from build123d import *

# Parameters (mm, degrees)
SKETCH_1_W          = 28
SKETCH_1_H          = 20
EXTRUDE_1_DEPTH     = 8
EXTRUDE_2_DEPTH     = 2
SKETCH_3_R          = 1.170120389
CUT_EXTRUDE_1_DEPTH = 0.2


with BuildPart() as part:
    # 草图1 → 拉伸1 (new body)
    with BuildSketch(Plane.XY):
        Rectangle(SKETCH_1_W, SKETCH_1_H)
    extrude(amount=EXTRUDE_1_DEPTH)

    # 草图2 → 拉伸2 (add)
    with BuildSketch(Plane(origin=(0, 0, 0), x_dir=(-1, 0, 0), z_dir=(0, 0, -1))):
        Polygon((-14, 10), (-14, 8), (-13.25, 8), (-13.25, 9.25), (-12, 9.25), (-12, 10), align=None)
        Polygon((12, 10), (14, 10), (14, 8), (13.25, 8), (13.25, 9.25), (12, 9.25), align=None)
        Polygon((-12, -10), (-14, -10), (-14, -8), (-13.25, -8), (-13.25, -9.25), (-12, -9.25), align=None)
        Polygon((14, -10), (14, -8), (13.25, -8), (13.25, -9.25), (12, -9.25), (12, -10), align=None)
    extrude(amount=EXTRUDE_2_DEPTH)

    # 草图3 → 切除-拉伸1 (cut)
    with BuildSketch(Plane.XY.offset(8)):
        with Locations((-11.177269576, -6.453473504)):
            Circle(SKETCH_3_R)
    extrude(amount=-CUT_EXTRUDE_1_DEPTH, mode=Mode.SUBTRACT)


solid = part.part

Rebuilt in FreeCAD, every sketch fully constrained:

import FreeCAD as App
import Part
import Sketcher

V = App.Vector


def add_polygon(sketch, points):
    """Adds a closed chain of lines whose ends are joined by coincident constraints."""
    first, n = sketch.GeometryCount, len(points)
    for a, b in zip(points, points[1:] + points[:1]):
        sketch.addGeometry(Part.LineSegment(App.Vector(*a, 0), App.Vector(*b, 0)), False)
    for i in range(n):
        sketch.addConstraint(Sketcher.Constraint("Coincident", first + i, 2, first + (i + 1) % n, 1))

doc = App.newDocument("Part")
body = doc.addObject("PartDesign::Body", "Body")

sketch1 = body.newObject("Sketcher::SketchObject", "Sketch")
sketch1.AttachmentSupport = (doc.getObject("XY_Plane"), [""])
sketch1.MapMode = "FlatFace"
add_polygon(sketch1, [(-14, 10), (-14, -10), (14, -10), (14, 10)])
sketch1.addConstraint([
    Sketcher.Constraint("Vertical", 0),
    Sketcher.Constraint("Horizontal", 1),
    Sketcher.Constraint("Vertical", 2),
    Sketcher.Constraint("Horizontal", 3),
    Sketcher.Constraint("Symmetric", 0, 2, 2, 2, -1, 1),
    Sketcher.Constraint("DistanceX", 1, 1, 1, 2, 28.0),
    Sketcher.Constraint("DistanceY", 0, 2, 0, 1, 20.0),
])
pad1 = body.newObject("PartDesign::Pad", "Pad")
pad1.Profile = sketch1
pad1.Length = 8

sketch2 = body.newObject("Sketcher::SketchObject", "Sketch001")
sketch2.AttachmentSupport = (doc.getObject("XY_Plane"), [""])
sketch2.MapMode = "FlatFace"
add_polygon(sketch2, [(14, 10), (14, 8), (13.2, 8), (13.2, 9.2), (12, 9.2), (12, 10)])
add_polygon(sketch2, [(-14, 10), (-12, 10), (-12, 9.2), (-13.2, 9.2), (-13.2, 8), (-14, 8)])
add_polygon(sketch2, [(14, -10), (12, -10), (12, -9.2), (13.2, -9.2), (13.2, -8), (14, -8)])
add_polygon(sketch2, [(-14, -10), (-14, -8), (-13.2, -8), (-13.2, -9.2), (-12, -9.2), (-12, -10)])
sketch2.addConstraint([
    Sketcher.Constraint("Vertical", 0),
    Sketcher.Constraint("Horizontal", 1),
    Sketcher.Constraint("Vertical", 2),
    Sketcher.Constraint("Horizontal", 3),
    Sketcher.Constraint("Vertical", 4),
    Sketcher.Constraint("Horizontal", 5),
    Sketcher.Constraint("Horizontal", 6),
    Sketcher.Constraint("Vertical", 7),
    Sketcher.Constraint("Horizontal", 8),
    Sketcher.Constraint("Vertical", 9),
    Sketcher.Constraint("Horizontal", 10),
    Sketcher.Constraint("Vertical", 11),
    Sketcher.Constraint("Horizontal", 12),
    Sketcher.Constraint("Vertical", 13),
    Sketcher.Constraint("Horizontal", 14),
    Sketcher.Constraint("Vertical", 15),
    Sketcher.Constraint("Horizontal", 16),
    Sketcher.Constraint("Vertical", 17),
    Sketcher.Constraint("Vertical", 18),
    Sketcher.Constraint("Horizontal", 19),
    Sketcher.Constraint("Vertical", 20),
    Sketcher.Constraint("Horizontal", 21),
    Sketcher.Constraint("Vertical", 22),
    Sketcher.Constraint("Horizontal", 23),
    Sketcher.Constraint("Symmetric", 6, 2, 12, 2, -1, 1),
    Sketcher.Constraint("Symmetric", 8, 2, 14, 2, -1, 1),
    Sketcher.Constraint("Symmetric", 10, 2, 16, 2, -1, 1),
    Sketcher.Constraint("Symmetric", 0, 2, 18, 2, -1, 1),
    Sketcher.Constraint("Symmetric", 2, 2, 20, 2, -1, 1),
    Sketcher.Constraint("Symmetric", 4, 2, 22, 2, -1, 1),
    Sketcher.Constraint("Symmetric", 4, 2, 6, 2, -2),
    Sketcher.Constraint("Symmetric", 2, 2, 8, 2, -2),
    Sketcher.Constraint("Symmetric", 0, 2, 10, 2, -2),
    Sketcher.Constraint("Equal", 23, 0),
    Sketcher.Constraint("Equal", 21, 2),
    Sketcher.Constraint("DistanceX", 5, 1, 5, 2, 2.0),
    Sketcher.Constraint("DistanceX", -1, 1, 0, 2, 14.0),
    Sketcher.Constraint("DistanceY", -1, 1, 0, 2, 8.0),
    Sketcher.Constraint("DistanceX", 1, 2, 1, 1, 0.75),
])
pad2 = body.newObject("PartDesign::Pad", "Pad001")
pad2.Profile = sketch2
pad2.Length = 2
pad2.Reversed = True

sketch3 = body.newObject("Sketcher::SketchObject", "Sketch002")
sketch3.AttachmentSupport = (doc.getObject("XY_Plane"), [""])
sketch3.MapMode = "FlatFace"
sketch3.AttachmentOffset = App.Placement(V(0, 0, 8), App.Rotation())
sketch3.addGeometry(Part.Circle(V(-11.2, -6.5, 0), V(0, 0, 1), 1.2), False)
sketch3.addConstraint([
    Sketcher.Constraint("Diameter", 0, 2.340241),
    Sketcher.Constraint("DistanceX", 0, 3, -1, 1, 11.17727),
    Sketcher.Constraint("DistanceY", 0, 3, -1, 1, 6.453474),
])
pocket1 = body.newObject("PartDesign::Pocket", "Pocket")
pocket1.Profile = sketch3
pocket1.Length = 0.2

doc.recompute()
